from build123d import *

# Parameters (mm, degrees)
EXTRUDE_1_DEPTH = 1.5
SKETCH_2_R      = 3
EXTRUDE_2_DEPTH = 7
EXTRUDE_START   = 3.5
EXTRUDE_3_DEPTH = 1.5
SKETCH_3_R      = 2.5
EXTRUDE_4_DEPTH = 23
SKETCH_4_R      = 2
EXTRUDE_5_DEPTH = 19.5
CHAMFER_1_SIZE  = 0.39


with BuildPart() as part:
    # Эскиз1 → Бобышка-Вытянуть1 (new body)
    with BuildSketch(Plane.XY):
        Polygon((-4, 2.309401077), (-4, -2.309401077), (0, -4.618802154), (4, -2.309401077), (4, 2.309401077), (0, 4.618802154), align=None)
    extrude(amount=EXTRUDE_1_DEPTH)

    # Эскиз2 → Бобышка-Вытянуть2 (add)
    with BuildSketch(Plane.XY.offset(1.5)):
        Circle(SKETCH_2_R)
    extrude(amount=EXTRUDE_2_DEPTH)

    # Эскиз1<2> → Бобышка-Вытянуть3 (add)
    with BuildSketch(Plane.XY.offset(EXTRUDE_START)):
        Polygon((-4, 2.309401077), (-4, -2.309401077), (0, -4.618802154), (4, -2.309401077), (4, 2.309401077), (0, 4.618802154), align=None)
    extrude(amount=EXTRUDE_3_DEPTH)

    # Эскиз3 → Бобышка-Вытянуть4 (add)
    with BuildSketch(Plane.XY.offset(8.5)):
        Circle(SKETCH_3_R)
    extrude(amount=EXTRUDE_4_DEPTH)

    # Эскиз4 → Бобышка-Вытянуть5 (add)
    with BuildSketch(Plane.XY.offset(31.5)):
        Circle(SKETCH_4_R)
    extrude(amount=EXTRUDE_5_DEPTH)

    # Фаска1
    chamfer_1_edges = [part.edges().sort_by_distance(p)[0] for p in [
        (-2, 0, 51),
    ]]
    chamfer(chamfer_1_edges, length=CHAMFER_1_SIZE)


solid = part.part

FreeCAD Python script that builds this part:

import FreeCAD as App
import Part
import Sketcher
Q = App.Units.Quantity


def edges_at(feature, points):
    """Names of the edges that pass closest to the given points."""
    edges = feature.Shape.Edges
    near = lambda p: min(range(len(edges)), key=lambda i: edges[i].distToShape(Part.Vertex(*p))[0])
    return sorted({f"Edge{near(p) + 1}" for p in points})


def add_polygon(sketch, points):
    """Adds a closed chain of lines whose ends are joined by coincident constraints."""
    first, n = sketch.GeometryCount, len(points)
    for a, b in zip(points, points[1:] + points[:1]):
        sketch.addGeometry(Part.LineSegment(App.Vector(*a, 0), App.Vector(*b, 0)), False)
    for i in range(n):
        sketch.addConstraint(Sketcher.Constraint("Coincident", first + i, 2, first + (i + 1) % n, 1))

doc = App.newDocument("Part")
body = doc.addObject("PartDesign::Body", "Body")

# Sketch on XY plane
sketch1 = body.newObject("Sketcher::SketchObject", "Sketch")
sketch1.AttachmentSupport = (doc.getObject("XY_Plane"), [""])
sketch1.MapMode = "FlatFace"
add_polygon(sketch1, [(-4, 2.3), (-4, -2.3), (0, -4.6), (4, -2.3), (4, 2.3), (0, 4.6)])  # lines 0-5
sketch1.addConstraint([
    Sketcher.Constraint("Vertical", 0),
    Sketcher.Constraint("Vertical", 3),
    Sketcher.Constraint("Symmetric", 0, 2, 3, 2, -1, 1),
    Sketcher.Constraint("Symmetric", 1, 2, 4, 2, -1, 1),
    Sketcher.Constraint("PointOnObject", 1, 2, -2),
    Sketcher.Constraint("Parallel", 2, 5),
    Sketcher.Constraint("Horizontal", 0, 2, 2, 2),
    Sketcher.Constraint("Angle", 1, Q("-30 deg")),
    Sketcher.Constraint("DistanceX", 0, 2, -1, 1, Q("4 mm")),
    Sketcher.Constraint("DistanceY", 0, 2, -1, 1, Q("2.309401 mm")),
])
pad1 = body.newObject("PartDesign::Pad", "Pad")
pad1.Profile = sketch1
pad1.Length = 1.5

# Sketch on XY plane
sketch2 = body.newObject("Sketcher::SketchObject", "Sketch001")
sketch2.AttachmentSupport = (doc.getObject("XY_Plane"), [""])
sketch2.MapMode = "FlatFace"
sketch2.AttachmentOffset = App.Placement(App.Vector(0, 0, 1.5), App.Rotation())
sketch2.addGeometry(Part.Circle(App.Vector(0, 0, 0), App.Vector(0, 0, 1), 3), False)
sketch2.addConstraint([
    Sketcher.Constraint("Coincident", 0, 3, -1, 1),
    Sketcher.Constraint("Diameter", 0, Q("6 mm")),
])
pad2 = body.newObject("PartDesign::Pad", "Pad001")
pad2.Profile = sketch2
pad2.Length = 7

# Sketch on XY plane
sketch3 = body.newObject("Sketcher::SketchObject", "Sketch002")
sketch3.AttachmentSupport = (doc.getObject("XY_Plane"), [""])
sketch3.MapMode = "FlatFace"
sketch3.AttachmentOffset = App.Placement(App.Vector(0, 0, 3.5), App.Rotation())
add_polygon(sketch3, [(-4, 2.3), (-4, -2.3), (0, -4.6), (4, -2.3), (4, 2.3), (0, 4.6)])  # lines 0-5
sketch3.addConstraint([
    Sketcher.Constraint("Vertical", 0),
    Sketcher.Constraint("Vertical", 3),
    Sketcher.Constraint("Symmetric", 0, 2, 3, 2, -1, 1),
    Sketcher.Constraint("Symmetric", 1, 2, 4, 2, -1, 1),
    Sketcher.Constraint("PointOnObject", 1, 2, -2),
    Sketcher.Constraint("Parallel", 2, 5),
    Sketcher.Constraint("Horizontal", 0, 2, 2, 2),
    Sketcher.Constraint("Angle", 1, Q("-30 deg")),
    Sketcher.Constraint("DistanceX", 0, 2, -1, 1, Q("4 mm")),
    Sketcher.Constraint("DistanceY", 0, 2, -1, 1, Q("2.309401 mm")),
])
pad3 = body.newObject("PartDesign::Pad", "Pad002")
pad3.Profile = sketch3
pad3.Length = 1.5

# Sketch on XY plane
sketch4 = body.newObject("Sketcher::SketchObject", "Sketch003")
sketch4.AttachmentSupport = (doc.getObject("XY_Plane"), [""])
sketch4.MapMode = "FlatFace"
sketch4.AttachmentOffset = App.Placement(App.Vector(0, 0, 8.5), App.Rotation())
sketch4.addGeometry(Part.Circle(App.Vector(0, 0, 0), App.Vector(0, 0, 1), 2.5), False)
sketch4.addConstraint([
    Sketcher.Constraint("Coincident", 0, 3, -1, 1),
    Sketcher.Constraint("Diameter", 0, Q("5 mm")),
])
pad4 = body.newObject("PartDesign::Pad", "Pad003")
pad4.Profile = sketch4
pad4.Length = 23

# Sketch on XY plane
sketch5 = body.newObject("Sketcher::SketchObject", "Sketch004")
sketch5.AttachmentSupport = (doc.getObject("XY_Plane"), [""])
sketch5.MapMode = "FlatFace"
sketch5.AttachmentOffset = App.Placement(App.Vector(0, 0, 31.5), App.Rotation())
sketch5.addGeometry(Part.Circle(App.Vector(0, 0, 0), App.Vector(0, 0, 1), 2), False)
sketch5.addConstraint([
    Sketcher.Constraint("Coincident", 0, 3, -1, 1),
    Sketcher.Constraint("Diameter", 0, Q("4 mm")),
])
pad5 = body.newObject("PartDesign::Pad", "Pad004")
pad5.Profile = sketch5
pad5.Length = 19.5
doc.recompute()

chamfer = body.newObject("PartDesign::Chamfer", "Chamfer")
chamfer.Base = (pad5, edges_at(pad5, [(-2, 0, 51)]))
chamfer.Size = 0.39

doc.recompute()
